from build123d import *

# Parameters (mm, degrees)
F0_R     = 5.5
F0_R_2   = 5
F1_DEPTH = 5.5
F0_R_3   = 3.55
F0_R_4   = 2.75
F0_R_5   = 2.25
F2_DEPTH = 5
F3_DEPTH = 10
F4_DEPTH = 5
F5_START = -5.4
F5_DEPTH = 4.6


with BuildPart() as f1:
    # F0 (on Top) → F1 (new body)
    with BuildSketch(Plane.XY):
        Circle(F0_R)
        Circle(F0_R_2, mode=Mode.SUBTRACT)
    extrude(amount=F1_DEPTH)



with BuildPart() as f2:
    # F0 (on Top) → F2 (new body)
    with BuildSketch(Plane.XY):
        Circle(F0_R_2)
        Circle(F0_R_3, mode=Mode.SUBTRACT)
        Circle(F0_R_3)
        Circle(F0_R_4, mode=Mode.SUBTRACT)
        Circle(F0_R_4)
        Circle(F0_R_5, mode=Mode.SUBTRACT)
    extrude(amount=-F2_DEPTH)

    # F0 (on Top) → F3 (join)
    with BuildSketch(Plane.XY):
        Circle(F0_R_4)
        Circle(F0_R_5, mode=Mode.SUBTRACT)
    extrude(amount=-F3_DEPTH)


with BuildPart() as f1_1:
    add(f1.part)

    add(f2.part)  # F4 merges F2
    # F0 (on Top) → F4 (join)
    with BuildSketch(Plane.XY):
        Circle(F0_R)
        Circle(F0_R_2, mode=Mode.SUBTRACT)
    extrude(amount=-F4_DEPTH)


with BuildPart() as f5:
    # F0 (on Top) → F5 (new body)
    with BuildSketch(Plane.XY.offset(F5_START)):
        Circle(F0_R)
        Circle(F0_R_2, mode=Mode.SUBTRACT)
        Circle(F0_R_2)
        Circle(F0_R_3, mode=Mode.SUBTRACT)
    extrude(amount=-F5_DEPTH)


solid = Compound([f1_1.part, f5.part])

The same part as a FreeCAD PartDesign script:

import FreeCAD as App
import Part
import Sketcher
Q = App.Units.Quantity

doc = App.newDocument("Part")
params = doc.addObject("Spreadsheet::Sheet", "Params")
for row, (alias, value) in enumerate([
    ("sketch1_diameter", "11 mm"),
    ("sketch1_diameter2", "10 mm"),
    ("pad1_length", "5.5 mm"),
    ("sketch2_diameter", "10 mm"),
    ("sketch2_diameter2", "4.5 mm"),
    ("pad2_length", "5 mm"),
    ("sketch3_diameter", "5.5 mm"),
    ("sketch3_diameter2", "4.5 mm"),
    ("pad3_length", "10 mm"),
    ("sketch4_diameter", "11 mm"),
    ("sketch4_diameter2", "10 mm"),
    ("pad4_length", "5 mm"),
    ("sketch5_diameter", "11 mm"),
    ("sketch5_diameter2", "7.1 mm"),
    ("pad5_length", "4.6 mm"),
], start=1):
    params.set(f"A{row}", alias)
    params.set(f"B{row}", "=" + value)
    params.setAlias(f"B{row}", alias)

body = doc.addObject("PartDesign::Body", "Body")

# Sketch on XY plane
sketch1 = body.newObject("Sketcher::SketchObject", "Sketch")
sketch1.AttachmentSupport = (doc.getObject("XY_Plane"), [""])
sketch1.MapMode = "FlatFace"
sketch1.addGeometry([
    Part.Circle(App.Vector(0, 0, 0), App.Vector(0, 0, 1), 6),
    Part.Circle(App.Vector(0, 0, 0), App.Vector(0, 0, 1), 5),
], False)
sketch1.addConstraint([
    Sketcher.Constraint("Coincident", 0, 3, -1, 1),
    Sketcher.Constraint("Coincident", 1, 3, -1, 1),
    Sketcher.Constraint("Diameter", 0, Q("11 mm")),
    Sketcher.Constraint("Diameter", 1, Q("10 mm")),
])
sketch1.setExpression("Constraints[2]", "Params.sketch1_diameter")
sketch1.setExpression("Constraints[3]", "Params.sketch1_diameter2")
pad1 = body.newObject("PartDesign::Pad", "Pad")
pad1.Profile = sketch1
pad1.setExpression("Length", "Params.pad1_length")
body2 = doc.addObject("PartDesign::Body", "Body001")

# Sketch on XY plane
sketch2 = body2.newObject("Sketcher::SketchObject", "Sketch001")
sketch2.AttachmentSupport = (doc.getObject("XY_Plane001"), [""])
sketch2.MapMode = "FlatFace"
sketch2.addGeometry([
    Part.Circle(App.Vector(0, 0, 0), App.Vector(0, 0, 1), 5),
    Part.Circle(App.Vector(0, 0, 0), App.Vector(0, 0, 1), 2.2),
], False)
sketch2.addConstraint([
    Sketcher.Constraint("Coincident", 0, 3, -1, 1),
    Sketcher.Constraint("Coincident", 1, 3, -1, 1),
    Sketcher.Constraint("Diameter", 0, Q("10 mm")),
    Sketcher.Constraint("Diameter", 1, Q("4.5 mm")),
])
sketch2.setExpression("Constraints[2]", "Params.sketch2_diameter")
sketch2.setExpression("Constraints[3]", "Params.sketch2_diameter2")
pad2 = body2.newObject("PartDesign::Pad", "Pad001")
pad2.Profile = sketch2
pad2.setExpression("Length", "Params.pad2_length")
pad2.Reversed = True

# Sketch on XY plane
sketch3 = body2.newObject("Sketcher::SketchObject", "Sketch002")
sketch3.AttachmentSupport = (doc.getObject("XY_Plane001"), [""])
sketch3.MapMode = "FlatFace"
sketch3.addGeometry([
    Part.Circle(App.Vector(0, 0, 0), App.Vector(0, 0, 1), 2.8),
    Part.Circle(App.Vector(0, 0, 0), App.Vector(0, 0, 1), 2.2),
], False)
sketch3.addConstraint([
    Sketcher.Constraint("Coincident", 0, 3, -1, 1),
    Sketcher.Constraint("Coincident", 1, 3, -1, 1),
    Sketcher.Constraint("Diameter", 0, Q("5.5 mm")),
    Sketcher.Constraint("Diameter", 1, Q("4.5 mm")),
])
sketch3.setExpression("Constraints[2]", "Params.sketch3_diameter")
sketch3.setExpression("Constraints[3]", "Params.sketch3_diameter2")
pad3 = body2.newObject("PartDesign::Pad", "Pad002")
pad3.Profile = sketch3
pad3.setExpression("Length", "Params.pad3_length")
pad3.Reversed = True
body.AllowCompound = True
doc.recompute()

boolean = body.newObject("PartDesign::Boolean", "Boolean")
boolean.Type = "Fuse"
boolean.addObjects([body2])

# Sketch on XY plane
sketch4 = body.newObject("Sketcher::SketchObject", "Sketch003")
sketch4.AttachmentSupport = (doc.getObject("XY_Plane"), [""])
sketch4.MapMode = "FlatFace"
sketch4.addGeometry([
    Part.Circle(App.Vector(0, 0, 0), App.Vector(0, 0, 1), 6),
    Part.Circle(App.Vector(0, 0, 0), App.Vector(0, 0, 1), 5),
], False)
sketch4.addConstraint([
    Sketcher.Constraint("Coincident", 0, 3, -1, 1),
    Sketcher.Constraint("Coincident", 1, 3, -1, 1),
    Sketcher.Constraint("Diameter", 0, Q("11 mm")),
    Sketcher.Constraint("Diameter", 1, Q("10 mm")),
])
sketch4.setExpression("Constraints[2]", "Params.sketch4_diameter")
sketch4.setExpression("Constraints[3]", "Params.sketch4_diameter2")
pad4 = body.newObject("PartDesign::Pad", "Pad003")
pad4.Profile = sketch4
pad4.setExpression("Length", "Params.pad4_length")
pad4.Reversed = True
body3 = doc.addObject("PartDesign::Body", "Body002")

# Sketch on XY plane
sketch5 = body3.newObject("Sketcher::SketchObject", "Sketch004")
sketch5.AttachmentSupport = (doc.getObject("XY_Plane002"), [""])
sketch5.MapMode = "FlatFace"
sketch5.AttachmentOffset = App.Placement(App.Vector(0, 0, -5.4), App.Rotation())
sketch5.addGeometry([
    Part.Circle(App.Vector(0, 0, 0), App.Vector(0, 0, 1), 5.5),
    Part.Circle(App.Vector(0, 0, 0), App.Vector(0, 0, 1), 3.5),
], False)
sketch5.addConstraint([
    Sketcher.Constraint("Coincident", 0, 3, -1, 1),
    Sketcher.Constraint("Coincident", 1, 3, -1, 1),
    Sketcher.Constraint("Diameter", 0, Q("11 mm")),
    Sketcher.Constraint("Diameter", 1, Q("7.1 mm")),
])
sketch5.setExpression("Constraints[2]", "Params.sketch5_diameter")
sketch5.setExpression("Constraints[3]", "Params.sketch5_diameter2")
pad5 = body3.newObject("PartDesign::Pad", "Pad004")
pad5.Profile = sketch5
pad5.setExpression("Length", "Params.pad5_length")
pad5.Reversed = True

doc.recompute()
